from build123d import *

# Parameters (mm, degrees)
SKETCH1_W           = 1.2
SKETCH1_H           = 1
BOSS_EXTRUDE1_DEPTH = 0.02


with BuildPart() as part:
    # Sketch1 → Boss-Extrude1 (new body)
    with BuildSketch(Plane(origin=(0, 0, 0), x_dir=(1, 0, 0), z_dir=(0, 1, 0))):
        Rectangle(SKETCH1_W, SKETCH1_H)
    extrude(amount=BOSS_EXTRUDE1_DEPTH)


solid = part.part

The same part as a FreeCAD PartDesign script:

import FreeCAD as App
import Part
import Sketcher
from FreeCAD import Vector
Q = App.Units.Quantity

doc = App.newDocument("Part")
params = doc.addObject("Spreadsheet::Sheet", "Params")
for row, (alias, value) in enumerate([
    ("sketch1_height", "1 mm"),
    ("sketch1_width", "1.2 mm"),
    ("pad1_length", "0.02 mm"),
], start=1):
    params.set(f"A{row}", alias)
    params.set(f"B{row}", "=" + value)
    params.setAlias(f"B{row}", alias)

body = doc.addObject("PartDesign::Body", "Body")

sketch1 = body.newObject("Sketcher::SketchObject", "Sketch")
sketch1.AttachmentSupport = (doc.getObject("XZ_Plane"), [""])
sketch1.MapMode = "FlatFace"
sketch1.addGeometry(Part.LineSegment(Vector(-0.6, -0.5, 0), Vector(-0.6, 0.5, 0)), False)
sketch1.addGeometry(Part.LineSegment(Vector(-0.6, 0.5, 0), Vector(0.6, 0.5, 0)), False)
sketch1.addGeometry(Part.LineSegment(Vector(0.6, 0.5, 0), Vector(0.6, -0.5, 0)), False)
sketch1.addGeometry(Part.LineSegment(Vector(0.6, -0.5, 0), Vector(-0.6, -0.5, 0)), False)
sketch1.addConstraint(Sketcher.Constraint("Coincident", 0, 2, 1, 1))
sketch1.addConstraint(Sketcher.Constraint("Coincident", 1, 2, 2, 1))
sketch1.addConstraint(Sketcher.Constraint("Coincident", 2, 2, 3, 1))
sketch1.addConstraint(Sketcher.Constraint("Coincident", 3, 2, 0, 1))
sketch1.addConstraint(Sketcher.Constraint("Vertical", 0))
sketch1.addConstraint(Sketcher.Constraint("Horizontal", 1))
sketch1.addConstraint(Sketcher.Constraint("Vertical", 2))
sketch1.addConstraint(Sketcher.Constraint("Horizontal", 3))
sketch1.addConstraint(Sketcher.Constraint("Symmetric", 0, 2, 2, 2, -1, 1))
sketch1.addConstraint(Sketcher.Constraint("DistanceY", 0, 1, 0, 2, Q("1 mm")))
sketch1.addConstraint(Sketcher.Constraint("DistanceX", 1, 1, 1, 2, Q("1.2 mm")))
sketch1.setExpression("Constraints[9]", "Params.sketch1_height")
sketch1.setExpression("Constraints[10]", "Params.sketch1_width")
pad1 = body.newObject("PartDesign::Pad", "Pad")
pad1.Profile = sketch1
pad1.setExpression("Length", "Params.pad1_length")
pad1.Reversed = True

doc.recompute()
